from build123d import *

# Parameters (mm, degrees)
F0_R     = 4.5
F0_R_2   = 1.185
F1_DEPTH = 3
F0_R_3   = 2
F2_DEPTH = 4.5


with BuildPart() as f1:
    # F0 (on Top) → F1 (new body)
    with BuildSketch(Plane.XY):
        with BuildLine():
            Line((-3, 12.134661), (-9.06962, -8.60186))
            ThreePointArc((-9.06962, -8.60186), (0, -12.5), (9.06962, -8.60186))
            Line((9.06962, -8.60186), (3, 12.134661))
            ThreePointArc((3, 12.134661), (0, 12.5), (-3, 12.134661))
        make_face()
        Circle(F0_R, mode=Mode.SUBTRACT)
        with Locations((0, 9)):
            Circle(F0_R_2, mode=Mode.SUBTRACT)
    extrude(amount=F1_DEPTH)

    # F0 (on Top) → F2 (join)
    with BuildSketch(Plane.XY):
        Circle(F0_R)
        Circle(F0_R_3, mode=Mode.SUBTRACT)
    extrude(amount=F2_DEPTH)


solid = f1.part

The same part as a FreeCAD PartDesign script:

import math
import FreeCAD as App
import Part
import Sketcher

V = App.Vector
Q = App.Units.Quantity

doc = App.newDocument("Part")
body = doc.addObject("PartDesign::Body", "Body")

# Sketch on XY plane
sketch1 = body.newObject("Sketcher::SketchObject", "Sketch")
sketch1.AttachmentSupport = (doc.getObject("XY_Plane"), [""])
sketch1.MapMode = "FlatFace"
sketch1.addGeometry([
    Part.LineSegment(V(-3, 12.1, 0), V(-9.1, -8.6, 0)),  # 0
    Part.ArcOfCircle(Part.Circle(V(0, 0, 0), V(0, 0, 1), 12.5), math.radians(-137), math.radians(-43)),  # 1
    Part.LineSegment(V(9.1, -8.6, 0), V(3, 12.1, 0)),  # 2
    Part.ArcOfCircle(Part.Circle(V(0, 0, 0), V(0, 0, 1), 12.5), math.radians(76), math.radians(104)),  # 3
    Part.Circle(V(0, 0, 0), V(0, 0, 1), 4.5),  # 4
    Part.Circle(V(0, 9, 0), V(0, 0, 1), 1.2),  # 5
], False)
sketch1.addConstraint([
    Sketcher.Constraint("Coincident", 0, 2, 1, 1),
    Sketcher.Constraint("Coincident", 1, 2, 2, 1),
    Sketcher.Constraint("Coincident", 2, 2, 3, 1),
    Sketcher.Constraint("Coincident", 3, 2, 0, 1),
    Sketcher.Constraint("Coincident", 1, 3, -1, 1),
    Sketcher.Constraint("Coincident", 3, 3, -1, 1),
    Sketcher.Constraint("Coincident", 4, 3, -1, 1),
    Sketcher.Constraint("PointOnObject", 5, 3, -2),
    Sketcher.Constraint("Horizontal", 0, 2, 1, 2),
    Sketcher.Constraint("Horizontal", 2, 2, 3, 2),
    Sketcher.Constraint("Diameter", 4, Q("9 mm")),
    Sketcher.Constraint("Radius", 1, Q("12.5 mm")),
    Sketcher.Constraint("Diameter", 5, Q("2.37 mm")),
    Sketcher.Constraint("DistanceY", -1, 1, 5, 3, Q("9 mm")),
    Sketcher.Constraint("DistanceX", -1, 1, 2, 2, Q("3 mm")),
    Sketcher.Constraint("Radius", 3, Q("12.499997 mm")),
    Sketcher.Constraint("DistanceX", 0, 2, -1, 1, Q("9.06962 mm")),
])
pad1 = body.newObject("PartDesign::Pad", "Pad")
pad1.Profile = sketch1
pad1.Length = 3

# Sketch on XY plane
sketch2 = body.newObject("Sketcher::SketchObject", "Sketch001")
sketch2.AttachmentSupport = (doc.getObject("XY_Plane"), [""])
sketch2.MapMode = "FlatFace"
sketch2.addGeometry([
    Part.Circle(V(0, 0, 0), V(0, 0, 1), 4.5),
    Part.Circle(V(0, 0, 0), V(0, 0, 1), 2),
], False)
sketch2.addConstraint([
    Sketcher.Constraint("Coincident", 0, 3, -1, 1),
    Sketcher.Constraint("Coincident", 1, 3, -1, 1),
    Sketcher.Constraint("Diameter", 0, Q("9 mm")),
    Sketcher.Constraint("Diameter", 1, Q("4 mm")),
])
pad2 = body.newObject("PartDesign::Pad", "Pad001")
pad2.Profile = sketch2
pad2.Length = 4.5

doc.recompute()
